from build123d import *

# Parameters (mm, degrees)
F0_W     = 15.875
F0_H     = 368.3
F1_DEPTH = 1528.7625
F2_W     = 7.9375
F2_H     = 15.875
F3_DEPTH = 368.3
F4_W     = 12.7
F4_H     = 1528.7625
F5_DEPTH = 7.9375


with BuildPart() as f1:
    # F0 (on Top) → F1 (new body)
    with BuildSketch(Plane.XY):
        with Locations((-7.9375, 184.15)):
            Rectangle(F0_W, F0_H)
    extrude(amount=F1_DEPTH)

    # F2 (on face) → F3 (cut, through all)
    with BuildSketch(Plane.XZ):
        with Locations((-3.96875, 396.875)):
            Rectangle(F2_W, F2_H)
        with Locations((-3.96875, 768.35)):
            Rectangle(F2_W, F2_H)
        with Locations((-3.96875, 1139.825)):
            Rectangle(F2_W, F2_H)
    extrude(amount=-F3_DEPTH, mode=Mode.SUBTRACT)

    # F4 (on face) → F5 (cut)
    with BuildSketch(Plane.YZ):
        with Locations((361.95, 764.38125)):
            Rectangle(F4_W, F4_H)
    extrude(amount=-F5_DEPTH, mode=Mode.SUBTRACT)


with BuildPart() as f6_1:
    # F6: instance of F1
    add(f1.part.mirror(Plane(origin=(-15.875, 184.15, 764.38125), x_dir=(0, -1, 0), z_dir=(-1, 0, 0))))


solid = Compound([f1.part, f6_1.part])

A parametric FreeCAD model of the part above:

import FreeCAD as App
import Part
import Sketcher
Q = App.Units.Quantity


def add_polygon(sketch, points):
    """Adds a closed chain of lines whose ends are joined by coincident constraints."""
    first, n = sketch.GeometryCount, len(points)
    for a, b in zip(points, points[1:] + points[:1]):
        sketch.addGeometry(Part.LineSegment(App.Vector(*a, 0), App.Vector(*b, 0)), False)
    for i in range(n):
        sketch.addConstraint(Sketcher.Constraint("Coincident", first + i, 2, first + (i + 1) % n, 1))

doc = App.newDocument("Part")
body = doc.addObject("PartDesign::Body", "Body")

sketch1 = body.newObject("Sketcher::SketchObject", "Sketch")
sketch1.AttachmentSupport = (doc.getObject("XY_Plane"), [""])
sketch1.MapMode = "FlatFace"
add_polygon(sketch1, [(-16, 368), (-16, 0), (0, 0), (0, 368)])
sketch1.addConstraint(Sketcher.Constraint("Vertical", 0))
sketch1.addConstraint(Sketcher.Constraint("Horizontal", 1))
sketch1.addConstraint(Sketcher.Constraint("Vertical", 2))
sketch1.addConstraint(Sketcher.Constraint("Horizontal", 3))
sketch1.addConstraint(Sketcher.Constraint("Coincident", 1, 2, -1, 1))
sketch1.addConstraint(Sketcher.Constraint("DistanceY", 0, 2, 0, 1, Q("14.5 in")))
sketch1.addConstraint(Sketcher.Constraint("DistanceX", 1, 1, 1, 2, Q("0.625 in")))
pad1 = body.newObject("PartDesign::Pad", "Pad")
pad1.Profile = sketch1
pad1.Length = Q("60.1875 in")

sketch2 = body.newObject("Sketcher::SketchObject", "Sketch001")
sketch2.AttachmentSupport = (doc.getObject("XZ_Plane"), [""])
sketch2.MapMode = "FlatFace"
add_polygon(sketch2, [(-8, 405), (-8, 389), (0, 389), (0, 405)])
add_polygon(sketch2, [(-8, 776), (-8, 760), (0, 760), (0, 776)])
add_polygon(sketch2, [(-8, 1148), (-8, 1132), (0, 1132), (0, 1148)])
sketch2.addConstraint(Sketcher.Constraint("Vertical", 0))
sketch2.addConstraint(Sketcher.Constraint("Horizontal", 1))
sketch2.addConstraint(Sketcher.Constraint("Vertical", 2))
sketch2.addConstraint(Sketcher.Constraint("Horizontal", 3))
sketch2.addConstraint(Sketcher.Constraint("Vertical", 4))
sketch2.addConstraint(Sketcher.Constraint("Horizontal", 5))
sketch2.addConstraint(Sketcher.Constraint("Vertical", 6))
sketch2.addConstraint(Sketcher.Constraint("Horizontal", 7))
sketch2.addConstraint(Sketcher.Constraint("Vertical", 8))
sketch2.addConstraint(Sketcher.Constraint("Horizontal", 9))
sketch2.addConstraint(Sketcher.Constraint("Vertical", 10))
sketch2.addConstraint(Sketcher.Constraint("Horizontal", 11))
sketch2.addConstraint(Sketcher.Constraint("PointOnObject", 1, 2, -2))
sketch2.addConstraint(Sketcher.Constraint("PointOnObject", 5, 2, -2))
sketch2.addConstraint(Sketcher.Constraint("PointOnObject", 9, 2, -2))
sketch2.addConstraint(Sketcher.Constraint("Vertical", 3, 2, 4, 2))
sketch2.addConstraint(Sketcher.Constraint("Vertical", 7, 2, 8, 2))
sketch2.addConstraint(Sketcher.Constraint("Equal", 2, 4))
sketch2.addConstraint(Sketcher.Constraint("Equal", 6, 8))
sketch2.addConstraint(Sketcher.Constraint("DistanceY", 3, 2, 4, 2, Q("14 in")))
sketch2.addConstraint(Sketcher.Constraint("DistanceY", 7, 2, 8, 2, Q("14 in")))
sketch2.addConstraint(Sketcher.Constraint("DistanceX", 1, 1, 1, 2, Q("0.3125 in")))
sketch2.addConstraint(Sketcher.Constraint("DistanceY", 0, 2, 0, 1, Q("0.625 in")))
sketch2.addConstraint(Sketcher.Constraint("DistanceY", -1, 1, 0, 2, Q("15.3125 in")))
pocket1 = body.newObject("PartDesign::Pocket", "Pocket")
pocket1.Profile = sketch2
pocket1.Type = "ThroughAll"

sketch3 = body.newObject("Sketcher::SketchObject", "Sketch002")
sketch3.AttachmentSupport = (doc.getObject("YZ_Plane"), [""])
sketch3.MapMode = "FlatFace"
add_polygon(sketch3, [(356, 1529), (356, 0), (368, 0), (368, 1529)])
sketch3.addConstraint(Sketcher.Constraint("Vertical", 0))
sketch3.addConstraint(Sketcher.Constraint("Horizontal", 1))
sketch3.addConstraint(Sketcher.Constraint("Vertical", 2))
sketch3.addConstraint(Sketcher.Constraint("Horizontal", 3))
sketch3.addConstraint(Sketcher.Constraint("PointOnObject", 0, 2, -1))
sketch3.addConstraint(Sketcher.Constraint("DistanceX", 1, 1, 1, 2, Q("0.5 in")))
sketch3.addConstraint(Sketcher.Constraint("DistanceX", -1, 1, 0, 2, Q("14 in")))
sketch3.addConstraint(Sketcher.Constraint("DistanceY", 0, 2, 0, 1, Q("60.1875 in")))
pocket2 = body.newObject("PartDesign::Pocket", "Pocket001")
pocket2.Profile = sketch3
pocket2.Length = Q("0.3125 in")
body2 = doc.addObject("PartDesign::Body", "Body001")
doc.recompute()

mirroring = doc.addObject("Part::Mirroring", "Mirroring")
mirroring.Source = body
mirroring.Base = App.Vector(-15.875, 184.15, 764.38125)
mirroring.Normal = App.Vector(-1, 0, 0)
body2.BaseFeature = mirroring
doc.recompute()
mirroring.Visibility = False

doc.recompute()
